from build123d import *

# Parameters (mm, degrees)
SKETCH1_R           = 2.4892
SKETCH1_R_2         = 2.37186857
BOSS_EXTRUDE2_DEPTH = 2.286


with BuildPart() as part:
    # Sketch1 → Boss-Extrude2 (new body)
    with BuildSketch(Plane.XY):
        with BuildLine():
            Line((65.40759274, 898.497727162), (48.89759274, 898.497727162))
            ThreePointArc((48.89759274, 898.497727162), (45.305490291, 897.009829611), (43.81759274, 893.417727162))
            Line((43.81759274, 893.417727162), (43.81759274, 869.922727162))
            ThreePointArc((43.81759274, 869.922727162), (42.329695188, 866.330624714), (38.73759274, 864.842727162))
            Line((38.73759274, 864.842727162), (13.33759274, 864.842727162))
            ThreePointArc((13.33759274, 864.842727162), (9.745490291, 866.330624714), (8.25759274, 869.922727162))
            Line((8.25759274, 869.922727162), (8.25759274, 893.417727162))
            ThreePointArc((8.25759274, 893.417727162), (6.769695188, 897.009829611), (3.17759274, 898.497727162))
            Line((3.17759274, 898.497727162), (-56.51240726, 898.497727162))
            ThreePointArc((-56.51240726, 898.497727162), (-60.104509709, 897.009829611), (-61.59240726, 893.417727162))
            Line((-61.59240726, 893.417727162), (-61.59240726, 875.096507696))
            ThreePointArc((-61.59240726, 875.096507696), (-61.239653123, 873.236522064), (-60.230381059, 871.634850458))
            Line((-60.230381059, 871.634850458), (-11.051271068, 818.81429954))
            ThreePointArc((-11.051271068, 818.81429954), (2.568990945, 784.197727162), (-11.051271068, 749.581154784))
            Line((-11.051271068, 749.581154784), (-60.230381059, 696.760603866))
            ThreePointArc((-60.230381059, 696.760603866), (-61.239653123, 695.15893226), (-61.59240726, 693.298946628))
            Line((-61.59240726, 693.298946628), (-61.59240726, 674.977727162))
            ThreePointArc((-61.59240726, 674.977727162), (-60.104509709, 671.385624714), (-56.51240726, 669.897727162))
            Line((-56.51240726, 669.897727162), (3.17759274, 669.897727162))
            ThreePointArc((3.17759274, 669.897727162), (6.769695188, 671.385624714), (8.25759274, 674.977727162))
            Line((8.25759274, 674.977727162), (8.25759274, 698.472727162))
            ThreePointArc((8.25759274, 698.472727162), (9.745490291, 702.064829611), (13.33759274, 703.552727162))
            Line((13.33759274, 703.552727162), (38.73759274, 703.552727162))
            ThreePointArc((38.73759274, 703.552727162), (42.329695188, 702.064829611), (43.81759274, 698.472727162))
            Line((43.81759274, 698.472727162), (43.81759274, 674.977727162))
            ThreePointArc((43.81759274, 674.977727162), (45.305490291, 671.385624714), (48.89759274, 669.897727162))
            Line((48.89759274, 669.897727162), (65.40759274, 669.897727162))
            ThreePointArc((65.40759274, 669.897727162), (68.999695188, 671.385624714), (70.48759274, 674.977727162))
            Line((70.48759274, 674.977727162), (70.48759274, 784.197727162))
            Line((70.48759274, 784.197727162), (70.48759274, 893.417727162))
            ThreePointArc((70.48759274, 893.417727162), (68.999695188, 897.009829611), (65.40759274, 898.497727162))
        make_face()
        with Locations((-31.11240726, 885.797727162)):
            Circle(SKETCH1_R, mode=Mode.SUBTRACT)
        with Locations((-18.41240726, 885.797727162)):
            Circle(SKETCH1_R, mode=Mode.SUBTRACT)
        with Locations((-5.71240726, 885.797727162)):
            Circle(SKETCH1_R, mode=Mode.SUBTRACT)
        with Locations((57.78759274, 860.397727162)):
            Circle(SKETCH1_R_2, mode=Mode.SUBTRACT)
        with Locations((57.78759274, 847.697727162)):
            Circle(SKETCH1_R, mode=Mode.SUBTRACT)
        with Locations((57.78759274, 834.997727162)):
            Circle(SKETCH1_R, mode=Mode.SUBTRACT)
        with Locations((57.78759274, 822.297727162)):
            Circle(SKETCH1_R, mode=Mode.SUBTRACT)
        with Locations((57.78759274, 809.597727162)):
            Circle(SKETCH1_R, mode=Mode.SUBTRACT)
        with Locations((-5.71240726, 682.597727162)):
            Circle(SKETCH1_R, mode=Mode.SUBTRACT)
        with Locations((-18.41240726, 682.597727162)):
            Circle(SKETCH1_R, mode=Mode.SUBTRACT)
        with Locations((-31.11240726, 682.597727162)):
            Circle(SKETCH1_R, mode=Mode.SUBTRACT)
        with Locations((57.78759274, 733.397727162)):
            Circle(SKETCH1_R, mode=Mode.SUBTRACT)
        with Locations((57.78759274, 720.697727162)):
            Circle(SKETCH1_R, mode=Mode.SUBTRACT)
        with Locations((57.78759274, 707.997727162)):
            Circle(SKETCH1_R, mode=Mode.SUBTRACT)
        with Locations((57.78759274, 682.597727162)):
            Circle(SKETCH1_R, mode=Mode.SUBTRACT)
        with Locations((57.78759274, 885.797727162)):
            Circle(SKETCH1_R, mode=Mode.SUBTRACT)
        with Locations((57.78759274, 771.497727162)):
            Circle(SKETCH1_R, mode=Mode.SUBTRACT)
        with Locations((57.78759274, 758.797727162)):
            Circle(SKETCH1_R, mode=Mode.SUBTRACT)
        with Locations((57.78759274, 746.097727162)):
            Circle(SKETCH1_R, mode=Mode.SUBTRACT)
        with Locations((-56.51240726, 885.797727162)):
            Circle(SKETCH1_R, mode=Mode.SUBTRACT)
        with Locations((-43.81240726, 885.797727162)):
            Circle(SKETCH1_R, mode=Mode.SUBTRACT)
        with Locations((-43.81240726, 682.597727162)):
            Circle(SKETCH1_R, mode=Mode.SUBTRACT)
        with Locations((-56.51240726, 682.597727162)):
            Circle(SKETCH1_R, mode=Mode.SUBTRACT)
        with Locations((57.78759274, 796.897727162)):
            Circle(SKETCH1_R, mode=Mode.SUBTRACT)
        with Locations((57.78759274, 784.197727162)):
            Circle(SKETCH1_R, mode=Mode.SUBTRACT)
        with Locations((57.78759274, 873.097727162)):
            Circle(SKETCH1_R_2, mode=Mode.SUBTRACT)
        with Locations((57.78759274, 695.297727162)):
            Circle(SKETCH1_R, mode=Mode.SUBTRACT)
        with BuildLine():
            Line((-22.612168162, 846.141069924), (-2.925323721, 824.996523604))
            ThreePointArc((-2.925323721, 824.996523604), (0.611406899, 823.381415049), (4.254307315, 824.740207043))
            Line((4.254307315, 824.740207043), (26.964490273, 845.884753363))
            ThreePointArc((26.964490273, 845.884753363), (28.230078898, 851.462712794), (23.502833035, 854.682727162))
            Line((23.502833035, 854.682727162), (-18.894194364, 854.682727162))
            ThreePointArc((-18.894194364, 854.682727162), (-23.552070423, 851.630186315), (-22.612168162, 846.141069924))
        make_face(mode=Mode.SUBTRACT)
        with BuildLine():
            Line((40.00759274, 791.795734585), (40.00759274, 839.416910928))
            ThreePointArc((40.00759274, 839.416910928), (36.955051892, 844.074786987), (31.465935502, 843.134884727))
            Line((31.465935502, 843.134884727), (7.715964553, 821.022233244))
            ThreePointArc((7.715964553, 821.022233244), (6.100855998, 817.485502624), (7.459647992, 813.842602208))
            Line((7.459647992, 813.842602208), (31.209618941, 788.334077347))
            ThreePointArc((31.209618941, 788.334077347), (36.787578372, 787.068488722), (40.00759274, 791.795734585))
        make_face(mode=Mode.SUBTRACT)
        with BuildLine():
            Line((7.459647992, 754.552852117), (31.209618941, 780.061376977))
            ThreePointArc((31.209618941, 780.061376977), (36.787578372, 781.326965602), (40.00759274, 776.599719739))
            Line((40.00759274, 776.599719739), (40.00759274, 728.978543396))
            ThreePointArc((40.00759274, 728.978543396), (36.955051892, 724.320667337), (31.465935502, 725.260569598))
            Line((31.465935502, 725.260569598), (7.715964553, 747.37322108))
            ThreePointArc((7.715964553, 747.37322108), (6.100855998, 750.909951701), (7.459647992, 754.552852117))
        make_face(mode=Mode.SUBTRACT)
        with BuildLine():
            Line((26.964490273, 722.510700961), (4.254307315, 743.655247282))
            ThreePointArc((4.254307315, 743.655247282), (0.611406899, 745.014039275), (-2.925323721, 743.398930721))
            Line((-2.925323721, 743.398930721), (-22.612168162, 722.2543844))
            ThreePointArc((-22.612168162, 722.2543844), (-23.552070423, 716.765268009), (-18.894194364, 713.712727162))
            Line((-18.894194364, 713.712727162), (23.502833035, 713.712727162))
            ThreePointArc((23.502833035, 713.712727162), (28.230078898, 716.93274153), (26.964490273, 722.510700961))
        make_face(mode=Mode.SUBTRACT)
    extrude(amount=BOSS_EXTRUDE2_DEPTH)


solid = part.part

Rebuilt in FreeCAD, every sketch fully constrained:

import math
import FreeCAD as App
import Part
import Sketcher

V = App.Vector
Q = App.Units.Quantity

doc = App.newDocument("Part")
params = doc.addObject("Spreadsheet::Sheet", "Params")
for row, (alias, value) in enumerate([
    ("sketch1_radius", "2 in"),
    ("sketch1_radius2", "0.2 in"),
    ("sketch1_width", "1 in"),
    ("sketch1_diameter", "0.196 in"),
    ("sketch1_height", "8.6 in"),
    ("pad1_length", "0.09 in"),
], start=1):
    params.set(f"A{row}", alias)
    params.set(f"B{row}", "=" + value)
    params.setAlias(f"B{row}", alias)

body = doc.addObject("PartDesign::Body", "Body")

# Sketch on XY plane
sketch1 = doc.addObject("Sketcher::SketchObject", "Sketch")
body.addObject(sketch1)
sketch1.AttachmentSupport = (doc.XY_Plane, [""])
sketch1.MapMode = "FlatFace"
sketch1.addGeometry(Part.LineSegment(V(65.4, 898.5, 0), V(48.9, 898.5, 0)), False)
sketch1.addGeometry(Part.ArcOfCircle(Part.Circle(V(48.9, 893.4, 0), V(0, 0, 1), 5.1), math.radians(90), math.radians(180)), False)
sketch1.addGeometry(Part.LineSegment(V(43.8, 893.4, 0), V(43.8, 869.9, 0)), False)
sketch1.addGeometry(Part.ArcOfCircle(Part.Circle(V(38.7, 869.9, 0), V(0, 0, 1), 5.1), math.radians(-90), math.radians(0)), False)
sketch1.addGeometry(Part.LineSegment(V(38.7, 864.8, 0), V(13.3, 864.8, 0)), False)
sketch1.addGeometry(Part.ArcOfCircle(Part.Circle(V(13.3, 869.9, 0), V(0, 0, 1), 5.1), math.radians(180), math.radians(270)), False)
sketch1.addGeometry(Part.LineSegment(V(8.3, 869.9, 0), V(8.3, 893.4, 0)), False)
sketch1.addGeometry(Part.ArcOfCircle(Part.Circle(V(3.2, 893.4, 0), V(0, 0, 1), 5.1), math.radians(0), math.radians(90)), False)
sketch1.addGeometry(Part.LineSegment(V(3.2, 898.5, 0), V(-56.5, 898.5, 0)), False)
sketch1.addGeometry(Part.ArcOfCircle(Part.Circle(V(-56.5, 893.4, 0), V(0, 0, 1), 5.1), math.radians(90), math.radians(180)), False)
sketch1.addGeometry(Part.LineSegment(V(-61.6, 893.4, 0), V(-61.6, 875.1, 0)), False)
sketch1.addGeometry(Part.ArcOfCircle(Part.Circle(V(-56.5, 875.1, 0), V(0, 0, 1), 5.1), math.radians(180), math.radians(223)), False)
sketch1.addGeometry(Part.LineSegment(V(-60.2, 871.6, 0), V(-11.1, 818.8, 0)), False)
sketch1.addGeometry(Part.ArcOfCircle(Part.Circle(V(-48.2, 784.2, 0), V(0, 0, 1), 50.8), math.radians(-43), math.radians(43)), False)
sketch1.addGeometry(Part.LineSegment(V(-11.1, 749.6, 0), V(-60.2, 696.8, 0)), False)
sketch1.addGeometry(Part.ArcOfCircle(Part.Circle(V(-56.5, 693.3, 0), V(0, 0, 1), 5.1), math.radians(137), math.radians(180)), False)
sketch1.addGeometry(Part.LineSegment(V(-61.6, 693.3, 0), V(-61.6, 675, 0)), False)
sketch1.addGeometry(Part.ArcOfCircle(Part.Circle(V(-56.5, 675, 0), V(0, 0, 1), 5.1), math.radians(180), math.radians(270)), False)
sketch1.addGeometry(Part.LineSegment(V(-56.5, 669.9, 0), V(3.2, 669.9, 0)), False)
sketch1.addGeometry(Part.ArcOfCircle(Part.Circle(V(3.2, 675, 0), V(0, 0, 1), 5.1), math.radians(-90), math.radians(0)), False)
sketch1.addGeometry(Part.LineSegment(V(8.3, 675, 0), V(8.3, 698.5, 0)), False)
sketch1.addGeometry(Part.ArcOfCircle(Part.Circle(V(13.3, 698.5, 0), V(0, 0, 1), 5.1), math.radians(90), math.radians(180)), False)
sketch1.addGeometry(Part.LineSegment(V(13.3, 703.6, 0), V(38.7, 703.6, 0)), False)
sketch1.addGeometry(Part.ArcOfCircle(Part.Circle(V(38.7, 698.5, 0), V(0, 0, 1), 5.1), math.radians(0), math.radians(90)), False)
sketch1.addGeometry(Part.LineSegment(V(43.8, 698.5, 0), V(43.8, 675, 0)), False)
sketch1.addGeometry(Part.ArcOfCircle(Part.Circle(V(48.9, 675, 0), V(0, 0, 1), 5.1), math.radians(180), math.radians(270)), False)
sketch1.addGeometry(Part.LineSegment(V(48.9, 669.9, 0), V(65.4, 669.9, 0)), False)
sketch1.addGeometry(Part.ArcOfCircle(Part.Circle(V(65.4, 675, 0), V(0, 0, 1), 5.1), math.radians(-90), math.radians(0)), False)
sketch1.addGeometry(Part.LineSegment(V(70.5, 675, 0), V(70.5, 893.4, 0)), False)
sketch1.addGeometry(Part.ArcOfCircle(Part.Circle(V(65.4, 893.4, 0), V(0, 0, 1), 5.1), math.radians(0), math.radians(90)), False)
sketch1.addGeometry(Part.Circle(V(-56.5, 682.6, 0), V(0, 0, 1), 2.5), False)
sketch1.addGeometry(Part.Circle(V(-43.8, 682.6, 0), V(0, 0, 1), 2.5), False)
sketch1.addGeometry(Part.Circle(V(-31.1, 682.6, 0), V(0, 0, 1), 2.5), False)
sketch1.addGeometry(Part.Circle(V(-18.4, 682.6, 0), V(0, 0, 1), 2.5), False)
sketch1.addGeometry(Part.Circle(V(-5.7, 682.6, 0), V(0, 0, 1), 2.5), False)
sketch1.addGeometry(Part.LineSegment(V(4.3, 743.7, 0), V(27, 722.5, 0)), False)
sketch1.addGeometry(Part.ArcOfCircle(Part.Circle(V(23.5, 718.8, 0), V(0, 0, 1), 5.1), math.radians(-90), math.radians(47)), False)
sketch1.addGeometry(Part.LineSegment(V(23.5, 713.7, 0), V(-18.9, 713.7, 0)), False)
sketch1.addGeometry(Part.ArcOfCircle(Part.Circle(V(-18.9, 718.8, 0), V(0, 0, 1), 5.1), math.radians(137), math.radians(270)), False)
sketch1.addGeometry(Part.LineSegment(V(-22.6, 722.3, 0), V(-2.9, 743.4, 0)), False)
sketch1.addGeometry(Part.ArcOfCircle(Part.Circle(V(0.8, 739.9, 0), V(0, 0, 1), 5.1), math.radians(47), math.radians(137)), False)
sketch1.addGeometry(Part.Circle(V(57.8, 682.6, 0), V(0, 0, 1), 2.5), False)
sketch1.addGeometry(Part.Circle(V(57.8, 695.3, 0), V(0, 0, 1), 2.5), False)
sketch1.addGeometry(Part.Circle(V(57.8, 708, 0), V(0, 0, 1), 2.5), False)
sketch1.addGeometry(Part.Circle(V(57.8, 720.7, 0), V(0, 0, 1), 2.5), False)
sketch1.addGeometry(Part.ArcOfCircle(Part.Circle(V(11.2, 751.1, 0), V(0, 0, 1), 5.1), math.radians(137), math.radians(227)), False)
sketch1.addGeometry(Part.LineSegment(V(7.5, 754.6, 0), V(31.2, 780.1, 0)), False)
sketch1.addGeometry(Part.ArcOfCircle(Part.Circle(V(34.9, 776.6, 0), V(0, 0, 1), 5.1), math.radians(0), math.radians(137)), False)
sketch1.addGeometry(Part.LineSegment(V(40, 776.6, 0), V(40, 729, 0)), False)
sketch1.addGeometry(Part.ArcOfCircle(Part.Circle(V(34.9, 729, 0), V(0, 0, 1), 5.1), math.radians(-133), math.radians(0)), False)
sketch1.addGeometry(Part.LineSegment(V(31.5, 725.3, 0), V(7.7, 747.4, 0)), False)
sketch1.addGeometry(Part.Circle(V(57.8, 733.4, 0), V(0, 0, 1), 2.5), False)
sketch1.addGeometry(Part.Circle(V(57.8, 746.1, 0), V(0, 0, 1), 2.5), False)
sketch1.addGeometry(Part.Circle(V(57.8, 758.8, 0), V(0, 0, 1), 2.5), False)
sketch1.addGeometry(Part.Circle(V(57.8, 771.5, 0), V(0, 0, 1), 2.5), False)
sketch1.addGeometry(Part.Circle(V(57.8, 784.2, 0), V(0, 0, 1), 2.5), False)
sketch1.addGeometry(Part.Circle(V(-56.5, 885.8, 0), V(0, 0, 1), 2.5), False)
sketch1.addGeometry(Part.Circle(V(-43.8, 885.8, 0), V(0, 0, 1), 2.5), False)
sketch1.addGeometry(Part.Circle(V(-31.1, 885.8, 0), V(0, 0, 1), 2.5), False)
sketch1.addGeometry(Part.Circle(V(-18.4, 885.8, 0), V(0, 0, 1), 2.5), False)
sketch1.addGeometry(Part.Circle(V(-5.7, 885.8, 0), V(0, 0, 1), 2.5), False)
sketch1.addGeometry(Part.LineSegment(V(40, 839.4, 0), V(40, 791.8, 0)), False)
sketch1.addGeometry(Part.ArcOfCircle(Part.Circle(V(34.9, 791.8, 0), V(0, 0, 1), 5.1), math.radians(-137), math.radians(0)), False)
sketch1.addGeometry(Part.LineSegment(V(31.2, 788.3, 0), V(7.5, 813.8, 0)), False)
sketch1.addGeometry(Part.ArcOfCircle(Part.Circle(V(11.2, 817.3, 0), V(0, 0, 1), 5.1), math.radians(133), math.radians(223)), False)
sketch1.addGeometry(Part.LineSegment(V(7.7, 821, 0), V(31.5, 843.1, 0)), False)
sketch1.addGeometry(Part.ArcOfCircle(Part.Circle(V(34.9, 839.4, 0), V(0, 0, 1), 5.1), math.radians(0), math.radians(133)), False)
sketch1.addGeometry(Part.Circle(V(57.8, 796.9, 0), V(0, 0, 1), 2.5), False)
sketch1.addGeometry(Part.Circle(V(57.8, 809.6, 0), V(0, 0, 1), 2.5), False)
sketch1.addGeometry(Part.Circle(V(57.8, 822.3, 0), V(0, 0, 1), 2.5), False)
sketch1.addGeometry(Part.Circle(V(57.8, 835, 0), V(0, 0, 1), 2.5), False)
sketch1.addGeometry(Part.LineSegment(V(-2.9, 825, 0), V(-22.6, 846.1, 0)), False)
sketch1.addGeometry(Part.ArcOfCircle(Part.Circle(V(-18.9, 849.6, 0), V(0, 0, 1), 5.1), math.radians(90), math.radians(223)), False)
sketch1.addGeometry(Part.LineSegment(V(-18.9, 854.7, 0), V(23.5, 854.7, 0)), False)
sketch1.addGeometry(Part.ArcOfCircle(Part.Circle(V(23.5, 849.6, 0), V(0, 0, 1), 5.1), math.radians(-47), math.radians(90)), False)
sketch1.addGeometry(Part.LineSegment(V(27, 845.9, 0), V(4.3, 824.7, 0)), False)
sketch1.addGeometry(Part.ArcOfCircle(Part.Circle(V(0.8, 828.5, 0), V(0, 0, 1), 5.1), math.radians(-137), math.radians(-47)), False)
sketch1.addGeometry(Part.Circle(V(57.8, 847.7, 0), V(0, 0, 1), 2.5), False)
sketch1.addGeometry(Part.Circle(V(57.8, 860.4, 0), V(0, 0, 1), 2.4), False)
sketch1.addGeometry(Part.Circle(V(57.8, 873.1, 0), V(0, 0, 1), 2.4), False)
sketch1.addGeometry(Part.Circle(V(57.8, 885.8, 0), V(0, 0, 1), 2.5), False)
sketch1.addConstraint(Sketcher.Constraint("Tangent", 0, 2, 1, 1))
sketch1.addConstraint(Sketcher.Constraint("Tangent", 1, 2, 2, 1))
sketch1.addConstraint(Sketcher.Constraint("Tangent", 2, 2, 3, 2))
sketch1.addConstraint(Sketcher.Constraint("Tangent", 3, 1, 4, 1))
sketch1.addConstraint(Sketcher.Constraint("Tangent", 4, 2, 5, 2))
sketch1.addConstraint(Sketcher.Constraint("Tangent", 5, 1, 6, 1))
sketch1.addConstraint(Sketcher.Constraint("Tangent", 6, 2, 7, 1))
sketch1.addConstraint(Sketcher.Constraint("Tangent", 7, 2, 8, 1))
sketch1.addConstraint(Sketcher.Constraint("Tangent", 8, 2, 9, 1))
sketch1.addConstraint(Sketcher.Constraint("Tangent", 9, 2, 10, 1))
sketch1.addConstraint(Sketcher.Constraint("Tangent", 10, 2, 11, 1))
sketch1.addConstraint(Sketcher.Constraint("Tangent", 11, 2, 12, 1))
sketch1.addConstraint(Sketcher.Constraint("Tangent", 12, 2, 13, 2))
sketch1.addConstraint(Sketcher.Constraint("Tangent", 13, 1, 14, 1))
sketch1.addConstraint(Sketcher.Constraint("Tangent", 14, 2, 15, 1))
sketch1.addConstraint(Sketcher.Constraint("Tangent", 15, 2, 16, 1))
sketch1.addConstraint(Sketcher.Constraint("Tangent", 16, 2, 17, 1))
sketch1.addConstraint(Sketcher.Constraint("Tangent", 17, 2, 18, 1))
sketch1.addConstraint(Sketcher.Constraint("Tangent", 18, 2, 19, 1))
sketch1.addConstraint(Sketcher.Constraint("Tangent", 19, 2, 20, 1))
sketch1.addConstraint(Sketcher.Constraint("Tangent", 20, 2, 21, 2))
sketch1.addConstraint(Sketcher.Constraint("Tangent", 21, 1, 22, 1))
sketch1.addConstraint(Sketcher.Constraint("Tangent", 22, 2, 23, 2))
sketch1.addConstraint(Sketcher.Constraint("Tangent", 23, 1, 24, 1))
sketch1.addConstraint(Sketcher.Constraint("Tangent", 24, 2, 25, 1))
sketch1.addConstraint(Sketcher.Constraint("Tangent", 25, 2, 26, 1))
sketch1.addConstraint(Sketcher.Constraint("Tangent", 26, 2, 27, 1))
sketch1.addConstraint(Sketcher.Constraint("Tangent", 27, 2, 28, 1))
sketch1.addConstraint(Sketcher.Constraint("Tangent", 28, 2, 29, 1))
sketch1.addConstraint(Sketcher.Constraint("Tangent", 29, 2, 0, 1))
sketch1.addConstraint(Sketcher.Constraint("Tangent", 35, 2, 36, 2))
sketch1.addConstraint(Sketcher.Constraint("Tangent", 36, 1, 37, 1))
sketch1.addConstraint(Sketcher.Constraint("Tangent", 37, 2, 38, 2))
sketch1.addConstraint(Sketcher.Constraint("Tangent", 38, 1, 39, 1))
sketch1.addConstraint(Sketcher.Constraint("Tangent", 39, 2, 40, 2))
sketch1.addConstraint(Sketcher.Constraint("Tangent", 40, 1, 35, 1))
sketch1.addConstraint(Sketcher.Constraint("Tangent", 45, 1, 46, 1))
sketch1.addConstraint(Sketcher.Constraint("Tangent", 46, 2, 47, 2))
sketch1.addConstraint(Sketcher.Constraint("Tangent", 47, 1, 48, 1))
sketch1.addConstraint(Sketcher.Constraint("Tangent", 48, 2, 49, 2))
sketch1.addConstraint(Sketcher.Constraint("Tangent", 49, 1, 50, 1))
sketch1.addConstraint(Sketcher.Constraint("Tangent", 50, 2, 45, 2))
sketch1.addConstraint(Sketcher.Constraint("Tangent", 61, 2, 62, 2))
sketch1.addConstraint(Sketcher.Constraint("Tangent", 62, 1, 63, 1))
sketch1.addConstraint(Sketcher.Constraint("Tangent", 63, 2, 64, 2))
sketch1.addConstraint(Sketcher.Constraint("Tangent", 64, 1, 65, 1))
sketch1.addConstraint(Sketcher.Constraint("Tangent", 65, 2, 66, 2))
sketch1.addConstraint(Sketcher.Constraint("Tangent", 66, 1, 61, 1))
sketch1.addConstraint(Sketcher.Constraint("Tangent", 71, 2, 72, 2))
sketch1.addConstraint(Sketcher.Constraint("Tangent", 72, 1, 73, 1))
sketch1.addConstraint(Sketcher.Constraint("Tangent", 73, 2, 74, 2))
sketch1.addConstraint(Sketcher.Constraint("Tangent", 74, 1, 75, 1))
sketch1.addConstraint(Sketcher.Constraint("Tangent", 75, 2, 76, 2))
sketch1.addConstraint(Sketcher.Constraint("Tangent", 76, 1, 71, 1))
sketch1.addConstraint(Sketcher.Constraint("Horizontal", 0))
sketch1.addConstraint(Sketcher.Constraint("Vertical", 2))
sketch1.addConstraint(Sketcher.Constraint("Horizontal", 4))
sketch1.addConstraint(Sketcher.Constraint("Vertical", 6))
sketch1.addConstraint(Sketcher.Constraint("Horizontal", 8))
sketch1.addConstraint(Sketcher.Constraint("Vertical", 10))
sketch1.addConstraint(Sketcher.Constraint("Vertical", 16))
sketch1.addConstraint(Sketcher.Constraint("Horizontal", 18))
sketch1.addConstraint(Sketcher.Constraint("Vertical", 20))
sketch1.addConstraint(Sketcher.Constraint("Horizontal", 22))
sketch1.addConstraint(Sketcher.Constraint("Vertical", 24))
sketch1.addConstraint(Sketcher.Constraint("Horizontal", 26))
sketch1.addConstraint(Sketcher.Constraint("Vertical", 28))
sketch1.addConstraint(Sketcher.Constraint("Horizontal", 37))
sketch1.addConstraint(Sketcher.Constraint("Vertical", 48))
sketch1.addConstraint(Sketcher.Constraint("Vertical", 61))
sketch1.addConstraint(Sketcher.Constraint("Horizontal", 73))
sketch1.addConstraint(Sketcher.Constraint("Equal", 1, 3))
sketch1.addConstraint(Sketcher.Constraint("Equal", 3, 5))
sketch1.addConstraint(Sketcher.Constraint("Equal", 5, 7))
sketch1.addConstraint(Sketcher.Constraint("Equal", 7, 9))
sketch1.addConstraint(Sketcher.Constraint("Equal", 9, 11))
sketch1.addConstraint(Sketcher.Constraint("Equal", 11, 15))
sketch1.addConstraint(Sketcher.Constraint("Equal", 15, 17))
sketch1.addConstraint(Sketcher.Constraint("Equal", 17, 19))
sketch1.addConstraint(Sketcher.Constraint("Equal", 19, 21))
sketch1.addConstraint(Sketcher.Constraint("Equal", 21, 23))
sketch1.addConstraint(Sketcher.Constraint("Equal", 23, 25))
sketch1.addConstraint(Sketcher.Constraint("Equal", 25, 27))
sketch1.addConstraint(Sketcher.Constraint("Equal", 27, 29))
sketch1.addConstraint(Sketcher.Constraint("Equal", 30, 31))
sketch1.addConstraint(Sketcher.Constraint("Equal", 31, 32))
sketch1.addConstraint(Sketcher.Constraint("Equal", 32, 33))
sketch1.addConstraint(Sketcher.Constraint("Equal", 33, 34))
sketch1.addConstraint(Sketcher.Constraint("Equal", 29, 36))
sketch1.addConstraint(Sketcher.Constraint("Equal", 36, 38))
sketch1.addConstraint(Sketcher.Constraint("Equal", 38, 40))
sketch1.addConstraint(Sketcher.Constraint("Equal", 34, 41))
sketch1.addConstraint(Sketcher.Constraint("Equal", 41, 42))
sketch1.addConstraint(Sketcher.Constraint("Equal", 42, 43))
sketch1.addConstraint(Sketcher.Constraint("Equal", 43, 44))
sketch1.addConstraint(Sketcher.Constraint("Equal", 40, 45))
sketch1.addConstraint(Sketcher.Constraint("Equal", 45, 47))
sketch1.addConstraint(Sketcher.Constraint("Equal", 47, 49))
sketch1.addConstraint(Sketcher.Constraint("Equal", 44, 51))
sketch1.addConstraint(Sketcher.Constraint("Equal", 51, 52))
sketch1.addConstraint(Sketcher.Constraint("Equal", 52, 53))
sketch1.addConstraint(Sketcher.Constraint("Equal", 53, 54))
sketch1.addConstraint(Sketcher.Constraint("Equal", 54, 55))
sketch1.addConstraint(Sketcher.Constraint("Equal", 55, 56))
sketch1.addConstraint(Sketcher.Constraint("Equal", 56, 57))
sketch1.addConstraint(Sketcher.Constraint("Equal", 57, 58))
sketch1.addConstraint(Sketcher.Constraint("Equal", 58, 59))
sketch1.addConstraint(Sketcher.Constraint("Equal", 59, 60))
sketch1.addConstraint(Sketcher.Constraint("Equal", 49, 62))
sketch1.addConstraint(Sketcher.Constraint("Equal", 62, 64))
sketch1.addConstraint(Sketcher.Constraint("Equal", 64, 66))
sketch1.addConstraint(Sketcher.Constraint("Equal", 60, 67))
sketch1.addConstraint(Sketcher.Constraint("Equal", 67, 68))
sketch1.addConstraint(Sketcher.Constraint("Equal", 68, 69))
sketch1.addConstraint(Sketcher.Constraint("Equal", 69, 70))
sketch1.addConstraint(Sketcher.Constraint("Equal", 66, 72))
sketch1.addConstraint(Sketcher.Constraint("Equal", 72, 74))
sketch1.addConstraint(Sketcher.Constraint("Equal", 74, 76))
sketch1.addConstraint(Sketcher.Constraint("Equal", 70, 77))
sketch1.addConstraint(Sketcher.Constraint("Equal", 78, 79))
sketch1.addConstraint(Sketcher.Constraint("Equal", 77, 80))
sketch1.addConstraint(Sketcher.Constraint("Perpendicular", 14, 35))
sketch1.addConstraint(Sketcher.Constraint("Perpendicular", 35, 39))
sketch1.addConstraint(Sketcher.Constraint("Parallel", 39, 46))
sketch1.addConstraint(Sketcher.Constraint("Perpendicular", 46, 50))
sketch1.addConstraint(Sketcher.Constraint("Parallel", 12, 63))
sketch1.addConstraint(Sketcher.Constraint("Perpendicular", 63, 65))
sketch1.addConstraint(Sketcher.Constraint("Perpendicular", 65, 71))
sketch1.addConstraint(Sketcher.Constraint("Perpendicular", 71, 75))
sketch1.addConstraint(Sketcher.Constraint("Horizontal", 1, 3, 7, 3))
sketch1.addConstraint(Sketcher.Constraint("Horizontal", 19, 3, 25, 3))
sketch1.addConstraint(Sketcher.Constraint("Horizontal", 30, 3, 31, 3))
sketch1.addConstraint(Sketcher.Constraint("Horizontal", 31, 3, 32, 3))
sketch1.addConstraint(Sketcher.Constraint("Horizontal", 32, 3, 33, 3))
sketch1.addConstraint(Sketcher.Constraint("Horizontal", 33, 3, 34, 3))
sketch1.addConstraint(Sketcher.Constraint("Horizontal", 34, 3, 41, 3))
sketch1.addConstraint(Sketcher.Constraint("Horizontal", 13, 3, 55, 3))
sketch1.addConstraint(Sketcher.Constraint("Horizontal", 56, 3, 57, 3))
sketch1.addConstraint(Sketcher.Constraint("Horizontal", 57, 3, 58, 3))
sketch1.addConstraint(Sketcher.Constraint("Horizontal", 58, 3, 59, 3))
sketch1.addConstraint(Sketcher.Constraint("Horizontal", 59, 3, 60, 3))
sketch1.addConstraint(Sketcher.Constraint("Horizontal", 60, 3, 80, 3))
sketch1.addConstraint(Sketcher.Constraint("Vertical", 11, 3, 15, 3))
sketch1.addConstraint(Sketcher.Constraint("Vertical", 7, 3, 19, 3))
sketch1.addConstraint(Sketcher.Constraint("Vertical", 3, 3, 23, 3))
sketch1.addConstraint(Sketcher.Constraint("Vertical", 17, 3, 30, 3))
sketch1.addConstraint(Sketcher.Constraint("Vertical", 41, 3, 42, 3))
sketch1.addConstraint(Sketcher.Constraint("Vertical", 42, 3, 43, 3))
sketch1.addConstraint(Sketcher.Constraint("Vertical", 43, 3, 44, 3))
sketch1.addConstraint(Sketcher.Constraint("Vertical", 44, 3, 51, 3))
sketch1.addConstraint(Sketcher.Constraint("Vertical", 51, 3, 52, 3))
sketch1.addConstraint(Sketcher.Constraint("Vertical", 52, 3, 53, 3))
sketch1.addConstraint(Sketcher.Constraint("Vertical", 53, 3, 54, 3))
sketch1.addConstraint(Sketcher.Constraint("Vertical", 54, 3, 55, 3))
sketch1.addConstraint(Sketcher.Constraint("Vertical", 30, 3, 56, 3))
sketch1.addConstraint(Sketcher.Constraint("Vertical", 31, 3, 57, 3))
sketch1.addConstraint(Sketcher.Constraint("Vertical", 32, 3, 58, 3))
sketch1.addConstraint(Sketcher.Constraint("Vertical", 33, 3, 59, 3))
sketch1.addConstraint(Sketcher.Constraint("Vertical", 34, 3, 60, 3))
sketch1.addConstraint(Sketcher.Constraint("Vertical", 49, 3, 62, 3))
sketch1.addConstraint(Sketcher.Constraint("Vertical", 45, 3, 64, 3))
sketch1.addConstraint(Sketcher.Constraint("Vertical", 55, 3, 67, 3))
sketch1.addConstraint(Sketcher.Constraint("Vertical", 67, 3, 68, 3))
sketch1.addConstraint(Sketcher.Constraint("Vertical", 68, 3, 69, 3))
sketch1.addConstraint(Sketcher.Constraint("Vertical", 69, 3, 70, 3))
sketch1.addConstraint(Sketcher.Constraint("Vertical", 38, 3, 72, 3))
sketch1.addConstraint(Sketcher.Constraint("Vertical", 36, 3, 74, 3))
sketch1.addConstraint(Sketcher.Constraint("Vertical", 40, 3, 76, 3))
sketch1.addConstraint(Sketcher.Constraint("Vertical", 70, 3, 77, 3))
sketch1.addConstraint(Sketcher.Constraint("Vertical", 77, 3, 78, 3))
sketch1.addConstraint(Sketcher.Constraint("Vertical", 78, 3, 79, 3))
sketch1.addConstraint(Sketcher.Constraint("Vertical", 79, 3, 80, 3))
sketch1.addConstraint(Sketcher.Constraint("Equal", 10, 16))
sketch1.addConstraint(Sketcher.Constraint("Equal", 6, 20))
sketch1.addConstraint(Sketcher.Constraint("Radius", 13, Q("2 in")))
sketch1.addConstraint(Sketcher.Constraint("Radius", 1, Q("0.2 in")))
sketch1.addConstraint(Sketcher.Constraint("DistanceX", 4, 2, 4, 1, Q("1 in")))
sketch1.addConstraint(Sketcher.Constraint("Diameter", 30, Q("0.196 in")))
sketch1.addConstraint(Sketcher.Constraint("DistanceY", 28, 1, 28, 2, Q("8.6 in")))
sketch1.addConstraint(Sketcher.Constraint("DistanceX", 0, 2, 0, 1, Q("0.65 in")))
sketch1.addConstraint(Sketcher.Constraint("DistanceX", 8, 2, 8, 1, Q("2.35 in")))
sketch1.addConstraint(Sketcher.Constraint("DistanceY", 2, 2, 2, 1, Q("0.925 in")))
sketch1.addConstraint(Sketcher.Constraint("Diameter", 78, Q("4.743737 mm")))
sketch1.addConstraint(Sketcher.Constraint("Distance", 12, Q("72.1706 mm")))
sketch1.addConstraint(Sketcher.Constraint("DistanceY", 10, 2, 10, 1, Q("18.321219 mm")))
sketch1.addConstraint(Sketcher.Constraint("DistanceY", -1, 1, 12, 2, Q("818.8143 mm")))
sketch1.addConstraint(Sketcher.Constraint("DistanceY", -1, 1, 35, 2, Q("722.510701 mm")))
sketch1.addConstraint(Sketcher.Constraint("Distance", 35, Q("31.029732 mm")))
sketch1.addConstraint(Sketcher.Constraint("Distance", 50, Q("32.450431 mm")))
sketch1.addConstraint(Sketcher.Constraint("DistanceX", 13, 3, -1, 1, Q("48.231009 mm")))
sketch1.addConstraint(Sketcher.Constraint("DistanceX", -1, 1, 40, 3, Q("0.79265 mm")))
sketch1.addConstraint(Sketcher.Constraint("DistanceX", -1, 1, 45, 3, Q("11.177622 mm")))
sketch1.addConstraint(Sketcher.Constraint("DistanceY", -1, 1, 47, 3, Q("776.59972 mm")))
sketch1.addConstraint(Sketcher.Constraint("DistanceY", -1, 1, 64, 3, Q("817.304259 mm")))
sketch1.addConstraint(Sketcher.Constraint("DistanceY", -1, 1, 76, 3, Q("828.458181 mm")))
sketch1.addConstraint(Sketcher.Constraint("DistanceY", -1, 1, 30, 3, Q("682.597727 mm")))
sketch1.addConstraint(Sketcher.Constraint("DistanceX", 31, 3, -1, 1, Q("43.812407 mm")))
sketch1.addConstraint(Sketcher.Constraint("DistanceX", 32, 3, -1, 1, Q("31.112407 mm")))
sketch1.addConstraint(Sketcher.Constraint("DistanceX", 33, 3, -1, 1, Q("18.412407 mm")))
sketch1.addConstraint(Sketcher.Constraint("DistanceX", 34, 3, -1, 1, Q("5.712407 mm")))
sketch1.addConstraint(Sketcher.Constraint("DistanceX", -1, 1, 41, 3, Q("57.787593 mm")))
sketch1.addConstraint(Sketcher.Constraint("DistanceY", -1, 1, 42, 3, Q("695.297727 mm")))
sketch1.addConstraint(Sketcher.Constraint("DistanceY", -1, 1, 43, 3, Q("707.997727 mm")))
sketch1.addConstraint(Sketcher.Constraint("DistanceY", -1, 1, 44, 3, Q("720.697727 mm")))
sketch1.addConstraint(Sketcher.Constraint("DistanceY", -1, 1, 51, 3, Q("733.397727 mm")))
sketch1.addConstraint(Sketcher.Constraint("DistanceY", -1, 1, 52, 3, Q("746.097727 mm")))
sketch1.addConstraint(Sketcher.Constraint("DistanceY", -1, 1, 53, 3, Q("758.797727 mm")))
sketch1.addConstraint(Sketcher.Constraint("DistanceY", -1, 1, 54, 3, Q("771.497727 mm")))
sketch1.addConstraint(Sketcher.Constraint("DistanceY", -1, 1, 56, 3, Q("885.797727 mm")))
sketch1.addConstraint(Sketcher.Constraint("DistanceY", -1, 1, 67, 3, Q("796.897727 mm")))
sketch1.addConstraint(Sketcher.Constraint("DistanceY", -1, 1, 68, 3, Q("809.597727 mm")))
sketch1.addConstraint(Sketcher.Constraint("DistanceY", -1, 1, 69, 3, Q("822.297727 mm")))
sketch1.addConstraint(Sketcher.Constraint("DistanceY", -1, 1, 70, 3, Q("834.997727 mm")))
sketch1.addConstraint(Sketcher.Constraint("DistanceY", -1, 1, 77, 3, Q("847.697727 mm")))
sketch1.addConstraint(Sketcher.Constraint("DistanceY", -1, 1, 78, 3, Q("860.397727 mm")))
sketch1.addConstraint(Sketcher.Constraint("DistanceY", -1, 1, 79, 3, Q("873.097727 mm")))
sketch1.setExpression("Constraints[174]", "Params.sketch1_radius")
sketch1.setExpression("Constraints[175]", "Params.sketch1_radius2")
sketch1.setExpression("Constraints[176]", "Params.sketch1_width")
sketch1.setExpression("Constraints[177]", "Params.sketch1_diameter")
sketch1.setExpression("Constraints[178]", "Params.sketch1_height")
pad1 = doc.addObject("PartDesign::Pad", "Pad")
body.addObject(pad1)
pad1.Profile = sketch1
pad1.setExpression("Length", "Params.pad1_length")

doc.recompute()
